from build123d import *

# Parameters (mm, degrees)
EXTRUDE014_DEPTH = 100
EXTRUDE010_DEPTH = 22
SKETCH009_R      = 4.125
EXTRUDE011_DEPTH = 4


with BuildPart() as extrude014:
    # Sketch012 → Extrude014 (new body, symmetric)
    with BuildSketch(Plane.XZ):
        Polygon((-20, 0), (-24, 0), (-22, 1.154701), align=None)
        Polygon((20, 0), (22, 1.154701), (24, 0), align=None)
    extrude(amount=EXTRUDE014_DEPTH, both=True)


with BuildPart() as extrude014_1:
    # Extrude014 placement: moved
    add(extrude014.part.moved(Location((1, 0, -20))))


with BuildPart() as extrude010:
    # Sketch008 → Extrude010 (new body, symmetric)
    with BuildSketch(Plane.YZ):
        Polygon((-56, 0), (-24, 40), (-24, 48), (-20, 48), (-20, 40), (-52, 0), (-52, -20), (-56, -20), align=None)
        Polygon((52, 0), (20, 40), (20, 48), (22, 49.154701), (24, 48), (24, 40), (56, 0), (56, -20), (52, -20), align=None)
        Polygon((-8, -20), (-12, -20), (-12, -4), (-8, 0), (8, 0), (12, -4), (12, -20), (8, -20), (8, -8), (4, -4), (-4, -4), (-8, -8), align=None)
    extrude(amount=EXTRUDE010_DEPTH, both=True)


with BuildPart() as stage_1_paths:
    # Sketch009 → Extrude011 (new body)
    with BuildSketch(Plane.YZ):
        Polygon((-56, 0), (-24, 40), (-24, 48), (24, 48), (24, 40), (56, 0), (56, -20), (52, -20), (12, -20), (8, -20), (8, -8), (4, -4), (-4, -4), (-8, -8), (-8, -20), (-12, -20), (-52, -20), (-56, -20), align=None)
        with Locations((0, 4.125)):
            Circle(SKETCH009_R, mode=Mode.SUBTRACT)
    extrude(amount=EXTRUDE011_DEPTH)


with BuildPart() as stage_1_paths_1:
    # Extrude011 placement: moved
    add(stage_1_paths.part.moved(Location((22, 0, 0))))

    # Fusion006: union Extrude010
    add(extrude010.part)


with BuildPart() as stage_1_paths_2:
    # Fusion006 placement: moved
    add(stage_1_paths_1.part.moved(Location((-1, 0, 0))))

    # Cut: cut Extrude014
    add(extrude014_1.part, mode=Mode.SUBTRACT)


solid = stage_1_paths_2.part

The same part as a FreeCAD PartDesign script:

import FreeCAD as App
import Part
import Sketcher
from FreeCAD import Vector
Q = App.Units.Quantity


def add_polygon(sketch, points):
    """Adds a closed chain of lines whose ends are joined by coincident constraints."""
    first, n = sketch.GeometryCount, len(points)
    for a, b in zip(points, points[1:] + points[:1]):
        sketch.addGeometry(Part.LineSegment(App.Vector(*a, 0), App.Vector(*b, 0)), False)
    for i in range(n):
        sketch.addConstraint(Sketcher.Constraint("Coincident", first + i, 2, first + (i + 1) % n, 1))

doc = App.newDocument("Part")
body = doc.addObject("PartDesign::Body", "Body")
body.AllowCompound = True

# Sketch on XZ plane
sketch1 = body.newObject("Sketcher::SketchObject", "Sketch")
sketch1.AttachmentSupport = (doc.getObject("XZ_Plane"), [""])
sketch1.MapMode = "FlatFace"
add_polygon(sketch1, [(-24, 0), (-20, 0), (-22, 1.2)])  # lines 0-2
add_polygon(sketch1, [(22, 1.2), (20, 0), (24, 0)])  # lines 3-5
sketch1.addConstraint([
    Sketcher.Constraint("Horizontal", 0),
    Sketcher.Constraint("Horizontal", 4),
    Sketcher.Constraint("Symmetric", 0, 2, 3, 2, -1, 1),
    Sketcher.Constraint("Symmetric", 2, 2, 4, 2, -2),
    Sketcher.Constraint("Symmetric", 1, 2, 5, 2, -2),
    Sketcher.Constraint("Parallel", 2, 3),
    Sketcher.Constraint("DistanceX", 0, 1, 0, 2, 4.0),
    Sketcher.Constraint("Angle", 1, Q("149.99999 deg")),
    Sketcher.Constraint("DistanceX", 0, 2, -1, 1, 20.0),
])
pad1 = body.newObject("PartDesign::Pad", "Pad")
pad1.Profile = sketch1
pad1.Length = 200
pad1.Midplane = True
body2 = doc.addObject("PartDesign::Body", "Body001")
body2.AllowCompound = True
doc.recompute()

body.Placement = App.Placement(Vector(1, 0, -20), App.Rotation(Vector(0, 0, 1), 0))
boolean = body2.newObject("PartDesign::Boolean", "Boolean")
boolean.Type = "Fuse"
boolean.addObjects([body])
body3 = doc.addObject("PartDesign::Body", "Body002")
body3.AllowCompound = True

# Sketch on YZ plane
sketch2 = body3.newObject("Sketcher::SketchObject", "Sketch001")
sketch2.AttachmentSupport = (doc.getObject("YZ_Plane002"), [""])
sketch2.MapMode = "FlatFace"
add_polygon(sketch2, [(-24, 40), (-56, 0), (-56, -20), (-52, -20), (-52, 0), (-20, 40), (-20, 48), (-24, 48)])  # lines 0-7
add_polygon(sketch2, [(20, 40), (52, 0), (52, -20), (56, -20), (56, 0), (24, 40), (24, 48), (22, 49.2), (20, 48)])  # lines 8-16
add_polygon(sketch2, [(-12, -20), (-8, -20), (-8, -8), (-4, -4), (4, -4), (8, -8), (8, -20), (12, -20), (12, -4), (8, 0), (-8, 0), (-12, -4)])  # lines 17-28
sketch2.addConstraint([
    Sketcher.Constraint("Vertical", 1),
    Sketcher.Constraint("Horizontal", 2),
    Sketcher.Constraint("Vertical", 3),
    Sketcher.Constraint("Vertical", 5),
    Sketcher.Constraint("Horizontal", 6),
    Sketcher.Constraint("Vertical", 7),
    Sketcher.Constraint("Vertical", 9),
    Sketcher.Constraint("Horizontal", 10),
    Sketcher.Constraint("Vertical", 11),
    Sketcher.Constraint("Vertical", 13),
    Sketcher.Constraint("Vertical", 16),
    Sketcher.Constraint("Horizontal", 17),
    Sketcher.Constraint("Vertical", 18),
    Sketcher.Constraint("Horizontal", 20),
    Sketcher.Constraint("Vertical", 22),
    Sketcher.Constraint("Horizontal", 23),
    Sketcher.Constraint("Vertical", 24),
    Sketcher.Constraint("Horizontal", 26),
    Sketcher.Constraint("Vertical", 28),
    Sketcher.Constraint("Symmetric", 3, 2, 8, 2, -1, 1),
    Sketcher.Constraint("Symmetric", 0, 2, 11, 2, -1, 1),
    Sketcher.Constraint("Symmetric", 25, 2, 26, 2, -1, 1),
    Sketcher.Constraint("Symmetric", 7, 2, 12, 2, -2),
    Sketcher.Constraint("Symmetric", 5, 2, 15, 2, -2),
    Sketcher.Constraint("Symmetric", 18, 2, 21, 2, -2),
    Sketcher.Constraint("Symmetric", 24, 2, 27, 2, -2),
    Sketcher.Constraint("PointOnObject", 0, 2, -1),
    Sketcher.Constraint("PointOnObject", 3, 2, -1),
    Sketcher.Constraint("Parallel", 0, 4),
    Sketcher.Constraint("Parallel", 8, 12),
    Sketcher.Constraint("Perpendicular", 19, 21),
    Sketcher.Constraint("Parallel", 21, 25),
    Sketcher.Constraint("Perpendicular", 25, 27),
    Sketcher.Constraint("Horizontal", 4, 2, 7, 2),
    Sketcher.Constraint("Horizontal", 2, 2, 9, 2),
    Sketcher.Constraint("Horizontal", 6, 2, 13, 2),
    Sketcher.Constraint("Horizontal", 10, 2, 17, 2),
    Sketcher.Constraint("Horizontal", 17, 2, 22, 2),
    Sketcher.Constraint("Horizontal", 20, 2, 24, 2),
    Sketcher.Constraint("Vertical", 22, 2, 25, 2),
    Sketcher.Constraint("Equal", 10, 17),
    Sketcher.Constraint("Equal", 20, 5),
    Sketcher.Constraint("Equal", 26, 24),
    Sketcher.Constraint("Equal", 14, 15),
    Sketcher.Constraint("Equal", 21, 25),
    Sketcher.Constraint("DistanceX", 2, 1, 2, 2, 4.0),
    Sketcher.Constraint("DistanceX", 20, 1, 20, 2, 8.0),
    Sketcher.Constraint("Angle", 14, Q("149.99999 deg")),
    Sketcher.Constraint("DistanceX", 0, 2, -1, 1, 56.0),
    Sketcher.Constraint("DistanceX", 4, 2, -1, 1, 20.0),
    Sketcher.Constraint("DistanceY", -1, 1, 4, 2, 40.0),
])
pad2 = body3.newObject("PartDesign::Pad", "Pad001")
pad2.Profile = sketch2
pad2.Length = 44
pad2.Midplane = True
body4 = doc.addObject("PartDesign::Body", "Body003")

# Sketch on YZ plane
sketch3 = body4.newObject("Sketcher::SketchObject", "Sketch002")
sketch3.AttachmentSupport = (doc.getObject("YZ_Plane003"), [""])
sketch3.MapMode = "FlatFace"
add_polygon(sketch3, [(-24, 40), (-56, 0), (-56, -20), (-8, -20), (-8, -8), (-4, -4), (4, -4), (8, -8), (8, -20), (56, -20), (56, 0), (24, 40), (24, 48), (-24, 48)])  # lines 0-13
sketch3.addGeometry(Part.Circle(Vector(0, 4.1, 0), Vector(0, 0, 1), 4.1), False)  # 14
sketch3.addConstraint([
    Sketcher.Constraint("Vertical", 1),
    Sketcher.Constraint("Horizontal", 2),
    Sketcher.Constraint("Vertical", 3),
    Sketcher.Constraint("Horizontal", 5),
    Sketcher.Constraint("Vertical", 7),
    Sketcher.Constraint("Horizontal", 8),
    Sketcher.Constraint("Vertical", 9),
    Sketcher.Constraint("Vertical", 11),
    Sketcher.Constraint("Horizontal", 12),
    Sketcher.Constraint("Vertical", 13),
    Sketcher.Constraint("Symmetric", 0, 2, 9, 2, -1, 1),
    Sketcher.Constraint("Symmetric", 3, 2, 6, 2, -2),
    Sketcher.Constraint("Symmetric", 10, 2, 13, 2, -2),
    Sketcher.Constraint("PointOnObject", 14, 3, -2),
    Sketcher.Constraint("PointOnObject", 0, 2, -1),
    Sketcher.Constraint("Perpendicular", 4, 6),
    Sketcher.Constraint("Horizontal", 2, 2, 7, 2),
    Sketcher.Constraint("Equal", 8, 12),
    Sketcher.Constraint("Equal", 5, 11),
    Sketcher.Constraint("Equal", 4, 6),
    Sketcher.Constraint("Diameter", 14, 8.25),
    Sketcher.Constraint("DistanceX", 2, 1, 2, 2, 48.0),
    Sketcher.Constraint("DistanceX", 5, 1, 5, 2, 8.0),
    Sketcher.Constraint("DistanceY", 1, 2, 1, 1, 20.0),
    Sketcher.Constraint("DistanceY", 3, 1, 3, 2, 12.0),
    Sketcher.Constraint("DistanceX", 0, 2, -1, 1, 56.0),
    Sketcher.Constraint("DistanceY", -1, 1, 10, 2, 40.0),
    Sketcher.Constraint("DistanceY", -1, 1, 14, 3, 4.125),
])
pad3 = body4.newObject("PartDesign::Pad", "Pad002")
pad3.Profile = sketch3
pad3.Length = 4
body5 = doc.addObject("PartDesign::Body", "Body004")
doc.recompute()

body4.Placement = App.Placement(Vector(22, 0, 0), App.Rotation(Vector(0, 0, 1), 0))
boolean2 = body5.newObject("PartDesign::Boolean", "Boolean001")
boolean2.Type = "Fuse"
boolean2.addObjects([body4])
doc.recompute()

boolean3 = body5.newObject("PartDesign::Boolean", "Boolean002")
boolean3.Type = "Fuse"
boolean3.addObjects([body3])
body6 = doc.addObject("PartDesign::Body", "Body005")
doc.recompute()

body5.Placement = App.Placement(Vector(-1, 0, 0), App.Rotation(Vector(0, 0, 1), 0))
boolean4 = body6.newObject("PartDesign::Boolean", "Boolean003")
boolean4.Type = "Fuse"
boolean4.addObjects([body5])
doc.recompute()

boolean5 = body6.newObject("PartDesign::Boolean", "Boolean004")
boolean5.Type = "Cut"
boolean5.addObjects([body2])

doc.recompute()
